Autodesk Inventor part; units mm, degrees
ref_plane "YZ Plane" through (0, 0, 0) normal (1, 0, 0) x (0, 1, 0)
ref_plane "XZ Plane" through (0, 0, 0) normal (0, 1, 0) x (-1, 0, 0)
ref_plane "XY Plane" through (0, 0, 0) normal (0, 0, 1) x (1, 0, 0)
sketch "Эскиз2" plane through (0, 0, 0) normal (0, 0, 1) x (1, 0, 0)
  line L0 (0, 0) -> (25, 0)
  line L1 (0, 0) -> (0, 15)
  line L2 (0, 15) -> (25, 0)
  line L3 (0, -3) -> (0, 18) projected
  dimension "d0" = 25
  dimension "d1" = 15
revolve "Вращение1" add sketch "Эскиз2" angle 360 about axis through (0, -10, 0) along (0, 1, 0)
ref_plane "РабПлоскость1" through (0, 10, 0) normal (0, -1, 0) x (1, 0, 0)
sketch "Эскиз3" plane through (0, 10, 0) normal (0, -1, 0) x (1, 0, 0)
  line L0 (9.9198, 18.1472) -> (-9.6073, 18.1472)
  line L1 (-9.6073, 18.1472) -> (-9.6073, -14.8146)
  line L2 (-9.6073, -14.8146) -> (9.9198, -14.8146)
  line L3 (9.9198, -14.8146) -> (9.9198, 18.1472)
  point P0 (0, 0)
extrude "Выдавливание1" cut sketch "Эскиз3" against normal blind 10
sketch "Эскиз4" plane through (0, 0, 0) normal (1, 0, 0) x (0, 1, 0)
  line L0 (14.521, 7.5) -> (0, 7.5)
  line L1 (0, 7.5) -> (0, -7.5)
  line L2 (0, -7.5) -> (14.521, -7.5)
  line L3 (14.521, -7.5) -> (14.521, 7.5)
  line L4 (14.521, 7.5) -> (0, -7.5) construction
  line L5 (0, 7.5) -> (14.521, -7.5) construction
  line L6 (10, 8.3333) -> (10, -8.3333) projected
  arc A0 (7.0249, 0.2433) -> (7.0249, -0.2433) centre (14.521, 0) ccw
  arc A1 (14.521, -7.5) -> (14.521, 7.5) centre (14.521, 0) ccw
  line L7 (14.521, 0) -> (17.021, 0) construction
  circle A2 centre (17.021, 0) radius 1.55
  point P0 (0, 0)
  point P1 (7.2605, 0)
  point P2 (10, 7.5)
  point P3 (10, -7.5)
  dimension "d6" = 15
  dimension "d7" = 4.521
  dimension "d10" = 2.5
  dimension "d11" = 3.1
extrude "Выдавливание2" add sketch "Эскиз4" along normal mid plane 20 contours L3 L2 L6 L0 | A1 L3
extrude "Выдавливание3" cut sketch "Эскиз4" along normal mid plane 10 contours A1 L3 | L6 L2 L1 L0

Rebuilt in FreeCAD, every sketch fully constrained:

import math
import FreeCAD as App
import Part
import Sketcher

V = App.Vector
Q = App.Units.Quantity


def add_polygon(sketch, points):
    """Adds a closed chain of lines whose ends are joined by coincident constraints."""
    first, n = sketch.GeometryCount, len(points)
    for a, b in zip(points, points[1:] + points[:1]):
        sketch.addGeometry(Part.LineSegment(App.Vector(*a, 0), App.Vector(*b, 0)), False)
    for i in range(n):
        sketch.addConstraint(Sketcher.Constraint("Coincident", first + i, 2, first + (i + 1) % n, 1))

doc = App.newDocument("Part")
body = doc.addObject("PartDesign::Body", "Body")

# Sketch on XY plane
sketch1 = body.newObject("Sketcher::SketchObject", "Sketch")
sketch1.AttachmentSupport = (doc.getObject("XY_Plane"), [""])
sketch1.MapMode = "FlatFace"
add_polygon(sketch1, [(0, 15), (0, 0), (25, 0)])  # lines 0-2
sketch1.addConstraint([
    Sketcher.Constraint("Vertical", 0),
    Sketcher.Constraint("Horizontal", 1),
    Sketcher.Constraint("Coincident", 0, 2, -1, 1),
    Sketcher.Constraint("DistanceX", 1, 1, 1, 2, Q("25 mm")),
    Sketcher.Constraint("DistanceY", 0, 2, 0, 1, Q("15 mm")),
])
revolution = body.newObject("PartDesign::Revolution", "Revolution")
revolution.Profile = sketch1
revolution.ReferenceAxis = (sketch1, ["V_Axis"])
revolution.Angle = 360

# Sketch on XZ plane
sketch2 = body.newObject("Sketcher::SketchObject", "Sketch001")
sketch2.AttachmentSupport = (doc.getObject("XZ_Plane"), [""])
sketch2.MapMode = "FlatFace"
sketch2.AttachmentOffset = App.Placement(V(0, 0, -10), App.Rotation())
add_polygon(sketch2, [(9.9198, -14.8146), (9.9198, 18.1472), (-9.6073, 18.1472), (-9.6073, -14.8146)])  # lines 0-3
sketch2.addConstraint([
    Sketcher.Constraint("Vertical", 0),
    Sketcher.Constraint("Horizontal", 1),
    Sketcher.Constraint("Vertical", 2),
    Sketcher.Constraint("Horizontal", 3),
    Sketcher.Constraint("DistanceX", 1, 2, 1, 1, Q("19.527 mm")),
    Sketcher.Constraint("DistanceY", 0, 1, 0, 2, Q("32.9618 mm")),
    Sketcher.Constraint("DistanceX", -1, 1, 0, 2, Q("9.9198 mm")),
    Sketcher.Constraint("DistanceY", -1, 1, 0, 2, Q("18.1472 mm")),
])
pocket1 = body.newObject("PartDesign::Pocket", "Pocket")
pocket1.Profile = sketch2
pocket1.Length = 10

# Sketch on YZ plane
sketch3 = body.newObject("Sketcher::SketchObject", "Sketch002")
sketch3.AttachmentSupport = (doc.getObject("YZ_Plane"), [""])
sketch3.MapMode = "FlatFace"
sketch3.addGeometry([
    Part.LineSegment(V(10, -7.5, 0), V(14.521, -7.5, 0)),  # 0
    Part.ArcOfCircle(Part.Circle(V(14.521, 0, 0), V(0, 0, 1), 7.5), math.radians(-90), math.radians(90)),  # 1
    Part.LineSegment(V(14.521, 7.5, 0), V(10, 7.5, 0)),  # 2
    Part.LineSegment(V(10, 7.5, 0), V(10, -7.5, 0)),  # 3
    Part.Circle(V(17.021, 0, 0), V(0, 0, 1), 1.55),  # 4
], False)
sketch3.addConstraint([
    Sketcher.Constraint("Tangent", 0, 2, 1, 1),
    Sketcher.Constraint("Tangent", 1, 2, 2, 1),
    Sketcher.Constraint("Coincident", 2, 2, 3, 1),
    Sketcher.Constraint("Coincident", 3, 2, 0, 1),
    Sketcher.Constraint("Horizontal", 0),
    Sketcher.Constraint("Horizontal", 2),
    Sketcher.Constraint("Vertical", 3),
    Sketcher.Constraint("PointOnObject", 1, 3, -1),
    Sketcher.Constraint("PointOnObject", 4, 3, -1),
    Sketcher.Constraint("Diameter", 4, Q("3.1 mm")),
    Sketcher.Constraint("Radius", 1, Q("7.5 mm")),
    Sketcher.Constraint("DistanceX", 1, 3, 4, 3, Q("2.5 mm")),
    Sketcher.Constraint("DistanceX", 0, 1, 0, 2, Q("4.521 mm")),
    Sketcher.Constraint("DistanceX", -1, 1, 2, 2, Q("10 mm")),
])
pad1 = body.newObject("PartDesign::Pad", "Pad")
pad1.Profile = sketch3
pad1.Length = 20
pad1.Midplane = True

# Sketch on YZ plane
sketch4 = body.newObject("Sketcher::SketchObject", "Sketch003")
sketch4.AttachmentSupport = (doc.getObject("YZ_Plane"), [""])
sketch4.MapMode = "FlatFace"
sketch4.addGeometry(Part.ArcOfCircle(Part.Circle(V(14.521, 0, 0), V(0, 0, 1), 7.5), math.radians(-90), math.radians(90)), False)  # 0
sketch4.addGeometry(Part.LineSegment(V(14.521, 7.5, 0), V(14.521, -7.5, 0)), False)  # 1
sketch4.addGeometry(Part.Circle(V(17.021, 0, 0), V(0, 0, 1), 1.55), False)  # 2
add_polygon(sketch4, [(10, -7.5), (10, 7.5), (0, 7.5), (0, -7.5)])  # lines 3-6
sketch4.addConstraint([
    Sketcher.Constraint("Coincident", 0, 1, 1, 2),
    Sketcher.Constraint("Coincident", 1, 1, 0, 2),
    Sketcher.Constraint("Vertical", 1),
    Sketcher.Constraint("Vertical", 3),
    Sketcher.Constraint("Horizontal", 4),
    Sketcher.Constraint("Vertical", 5),
    Sketcher.Constraint("Horizontal", 6),
    Sketcher.Constraint("Symmetric", 4, 2, 5, 2, -1, 1),
    Sketcher.Constraint("PointOnObject", 0, 3, -1),
    Sketcher.Constraint("PointOnObject", 2, 3, -1),
    Sketcher.Constraint("Horizontal", 1, 1, 3, 2),
    Sketcher.Constraint("Diameter", 2, Q("3.1 mm")),
    Sketcher.Constraint("Radius", 0, Q("7.5 mm")),
    Sketcher.Constraint("DistanceX", 0, 3, 2, 3, Q("2.5 mm")),
    Sketcher.Constraint("DistanceX", 0, 1, 2, 3, Q("2.5 mm")),
    Sketcher.Constraint("DistanceX", 4, 2, 4, 1, Q("10 mm")),
    Sketcher.Constraint("DistanceX", 3, 2, 1, 1, Q("4.521 mm")),
])
pocket2 = body.newObject("PartDesign::Pocket", "Pocket001")
pocket2.Profile = sketch4
pocket2.Length = 10
pocket2.Midplane = True

doc.recompute()
